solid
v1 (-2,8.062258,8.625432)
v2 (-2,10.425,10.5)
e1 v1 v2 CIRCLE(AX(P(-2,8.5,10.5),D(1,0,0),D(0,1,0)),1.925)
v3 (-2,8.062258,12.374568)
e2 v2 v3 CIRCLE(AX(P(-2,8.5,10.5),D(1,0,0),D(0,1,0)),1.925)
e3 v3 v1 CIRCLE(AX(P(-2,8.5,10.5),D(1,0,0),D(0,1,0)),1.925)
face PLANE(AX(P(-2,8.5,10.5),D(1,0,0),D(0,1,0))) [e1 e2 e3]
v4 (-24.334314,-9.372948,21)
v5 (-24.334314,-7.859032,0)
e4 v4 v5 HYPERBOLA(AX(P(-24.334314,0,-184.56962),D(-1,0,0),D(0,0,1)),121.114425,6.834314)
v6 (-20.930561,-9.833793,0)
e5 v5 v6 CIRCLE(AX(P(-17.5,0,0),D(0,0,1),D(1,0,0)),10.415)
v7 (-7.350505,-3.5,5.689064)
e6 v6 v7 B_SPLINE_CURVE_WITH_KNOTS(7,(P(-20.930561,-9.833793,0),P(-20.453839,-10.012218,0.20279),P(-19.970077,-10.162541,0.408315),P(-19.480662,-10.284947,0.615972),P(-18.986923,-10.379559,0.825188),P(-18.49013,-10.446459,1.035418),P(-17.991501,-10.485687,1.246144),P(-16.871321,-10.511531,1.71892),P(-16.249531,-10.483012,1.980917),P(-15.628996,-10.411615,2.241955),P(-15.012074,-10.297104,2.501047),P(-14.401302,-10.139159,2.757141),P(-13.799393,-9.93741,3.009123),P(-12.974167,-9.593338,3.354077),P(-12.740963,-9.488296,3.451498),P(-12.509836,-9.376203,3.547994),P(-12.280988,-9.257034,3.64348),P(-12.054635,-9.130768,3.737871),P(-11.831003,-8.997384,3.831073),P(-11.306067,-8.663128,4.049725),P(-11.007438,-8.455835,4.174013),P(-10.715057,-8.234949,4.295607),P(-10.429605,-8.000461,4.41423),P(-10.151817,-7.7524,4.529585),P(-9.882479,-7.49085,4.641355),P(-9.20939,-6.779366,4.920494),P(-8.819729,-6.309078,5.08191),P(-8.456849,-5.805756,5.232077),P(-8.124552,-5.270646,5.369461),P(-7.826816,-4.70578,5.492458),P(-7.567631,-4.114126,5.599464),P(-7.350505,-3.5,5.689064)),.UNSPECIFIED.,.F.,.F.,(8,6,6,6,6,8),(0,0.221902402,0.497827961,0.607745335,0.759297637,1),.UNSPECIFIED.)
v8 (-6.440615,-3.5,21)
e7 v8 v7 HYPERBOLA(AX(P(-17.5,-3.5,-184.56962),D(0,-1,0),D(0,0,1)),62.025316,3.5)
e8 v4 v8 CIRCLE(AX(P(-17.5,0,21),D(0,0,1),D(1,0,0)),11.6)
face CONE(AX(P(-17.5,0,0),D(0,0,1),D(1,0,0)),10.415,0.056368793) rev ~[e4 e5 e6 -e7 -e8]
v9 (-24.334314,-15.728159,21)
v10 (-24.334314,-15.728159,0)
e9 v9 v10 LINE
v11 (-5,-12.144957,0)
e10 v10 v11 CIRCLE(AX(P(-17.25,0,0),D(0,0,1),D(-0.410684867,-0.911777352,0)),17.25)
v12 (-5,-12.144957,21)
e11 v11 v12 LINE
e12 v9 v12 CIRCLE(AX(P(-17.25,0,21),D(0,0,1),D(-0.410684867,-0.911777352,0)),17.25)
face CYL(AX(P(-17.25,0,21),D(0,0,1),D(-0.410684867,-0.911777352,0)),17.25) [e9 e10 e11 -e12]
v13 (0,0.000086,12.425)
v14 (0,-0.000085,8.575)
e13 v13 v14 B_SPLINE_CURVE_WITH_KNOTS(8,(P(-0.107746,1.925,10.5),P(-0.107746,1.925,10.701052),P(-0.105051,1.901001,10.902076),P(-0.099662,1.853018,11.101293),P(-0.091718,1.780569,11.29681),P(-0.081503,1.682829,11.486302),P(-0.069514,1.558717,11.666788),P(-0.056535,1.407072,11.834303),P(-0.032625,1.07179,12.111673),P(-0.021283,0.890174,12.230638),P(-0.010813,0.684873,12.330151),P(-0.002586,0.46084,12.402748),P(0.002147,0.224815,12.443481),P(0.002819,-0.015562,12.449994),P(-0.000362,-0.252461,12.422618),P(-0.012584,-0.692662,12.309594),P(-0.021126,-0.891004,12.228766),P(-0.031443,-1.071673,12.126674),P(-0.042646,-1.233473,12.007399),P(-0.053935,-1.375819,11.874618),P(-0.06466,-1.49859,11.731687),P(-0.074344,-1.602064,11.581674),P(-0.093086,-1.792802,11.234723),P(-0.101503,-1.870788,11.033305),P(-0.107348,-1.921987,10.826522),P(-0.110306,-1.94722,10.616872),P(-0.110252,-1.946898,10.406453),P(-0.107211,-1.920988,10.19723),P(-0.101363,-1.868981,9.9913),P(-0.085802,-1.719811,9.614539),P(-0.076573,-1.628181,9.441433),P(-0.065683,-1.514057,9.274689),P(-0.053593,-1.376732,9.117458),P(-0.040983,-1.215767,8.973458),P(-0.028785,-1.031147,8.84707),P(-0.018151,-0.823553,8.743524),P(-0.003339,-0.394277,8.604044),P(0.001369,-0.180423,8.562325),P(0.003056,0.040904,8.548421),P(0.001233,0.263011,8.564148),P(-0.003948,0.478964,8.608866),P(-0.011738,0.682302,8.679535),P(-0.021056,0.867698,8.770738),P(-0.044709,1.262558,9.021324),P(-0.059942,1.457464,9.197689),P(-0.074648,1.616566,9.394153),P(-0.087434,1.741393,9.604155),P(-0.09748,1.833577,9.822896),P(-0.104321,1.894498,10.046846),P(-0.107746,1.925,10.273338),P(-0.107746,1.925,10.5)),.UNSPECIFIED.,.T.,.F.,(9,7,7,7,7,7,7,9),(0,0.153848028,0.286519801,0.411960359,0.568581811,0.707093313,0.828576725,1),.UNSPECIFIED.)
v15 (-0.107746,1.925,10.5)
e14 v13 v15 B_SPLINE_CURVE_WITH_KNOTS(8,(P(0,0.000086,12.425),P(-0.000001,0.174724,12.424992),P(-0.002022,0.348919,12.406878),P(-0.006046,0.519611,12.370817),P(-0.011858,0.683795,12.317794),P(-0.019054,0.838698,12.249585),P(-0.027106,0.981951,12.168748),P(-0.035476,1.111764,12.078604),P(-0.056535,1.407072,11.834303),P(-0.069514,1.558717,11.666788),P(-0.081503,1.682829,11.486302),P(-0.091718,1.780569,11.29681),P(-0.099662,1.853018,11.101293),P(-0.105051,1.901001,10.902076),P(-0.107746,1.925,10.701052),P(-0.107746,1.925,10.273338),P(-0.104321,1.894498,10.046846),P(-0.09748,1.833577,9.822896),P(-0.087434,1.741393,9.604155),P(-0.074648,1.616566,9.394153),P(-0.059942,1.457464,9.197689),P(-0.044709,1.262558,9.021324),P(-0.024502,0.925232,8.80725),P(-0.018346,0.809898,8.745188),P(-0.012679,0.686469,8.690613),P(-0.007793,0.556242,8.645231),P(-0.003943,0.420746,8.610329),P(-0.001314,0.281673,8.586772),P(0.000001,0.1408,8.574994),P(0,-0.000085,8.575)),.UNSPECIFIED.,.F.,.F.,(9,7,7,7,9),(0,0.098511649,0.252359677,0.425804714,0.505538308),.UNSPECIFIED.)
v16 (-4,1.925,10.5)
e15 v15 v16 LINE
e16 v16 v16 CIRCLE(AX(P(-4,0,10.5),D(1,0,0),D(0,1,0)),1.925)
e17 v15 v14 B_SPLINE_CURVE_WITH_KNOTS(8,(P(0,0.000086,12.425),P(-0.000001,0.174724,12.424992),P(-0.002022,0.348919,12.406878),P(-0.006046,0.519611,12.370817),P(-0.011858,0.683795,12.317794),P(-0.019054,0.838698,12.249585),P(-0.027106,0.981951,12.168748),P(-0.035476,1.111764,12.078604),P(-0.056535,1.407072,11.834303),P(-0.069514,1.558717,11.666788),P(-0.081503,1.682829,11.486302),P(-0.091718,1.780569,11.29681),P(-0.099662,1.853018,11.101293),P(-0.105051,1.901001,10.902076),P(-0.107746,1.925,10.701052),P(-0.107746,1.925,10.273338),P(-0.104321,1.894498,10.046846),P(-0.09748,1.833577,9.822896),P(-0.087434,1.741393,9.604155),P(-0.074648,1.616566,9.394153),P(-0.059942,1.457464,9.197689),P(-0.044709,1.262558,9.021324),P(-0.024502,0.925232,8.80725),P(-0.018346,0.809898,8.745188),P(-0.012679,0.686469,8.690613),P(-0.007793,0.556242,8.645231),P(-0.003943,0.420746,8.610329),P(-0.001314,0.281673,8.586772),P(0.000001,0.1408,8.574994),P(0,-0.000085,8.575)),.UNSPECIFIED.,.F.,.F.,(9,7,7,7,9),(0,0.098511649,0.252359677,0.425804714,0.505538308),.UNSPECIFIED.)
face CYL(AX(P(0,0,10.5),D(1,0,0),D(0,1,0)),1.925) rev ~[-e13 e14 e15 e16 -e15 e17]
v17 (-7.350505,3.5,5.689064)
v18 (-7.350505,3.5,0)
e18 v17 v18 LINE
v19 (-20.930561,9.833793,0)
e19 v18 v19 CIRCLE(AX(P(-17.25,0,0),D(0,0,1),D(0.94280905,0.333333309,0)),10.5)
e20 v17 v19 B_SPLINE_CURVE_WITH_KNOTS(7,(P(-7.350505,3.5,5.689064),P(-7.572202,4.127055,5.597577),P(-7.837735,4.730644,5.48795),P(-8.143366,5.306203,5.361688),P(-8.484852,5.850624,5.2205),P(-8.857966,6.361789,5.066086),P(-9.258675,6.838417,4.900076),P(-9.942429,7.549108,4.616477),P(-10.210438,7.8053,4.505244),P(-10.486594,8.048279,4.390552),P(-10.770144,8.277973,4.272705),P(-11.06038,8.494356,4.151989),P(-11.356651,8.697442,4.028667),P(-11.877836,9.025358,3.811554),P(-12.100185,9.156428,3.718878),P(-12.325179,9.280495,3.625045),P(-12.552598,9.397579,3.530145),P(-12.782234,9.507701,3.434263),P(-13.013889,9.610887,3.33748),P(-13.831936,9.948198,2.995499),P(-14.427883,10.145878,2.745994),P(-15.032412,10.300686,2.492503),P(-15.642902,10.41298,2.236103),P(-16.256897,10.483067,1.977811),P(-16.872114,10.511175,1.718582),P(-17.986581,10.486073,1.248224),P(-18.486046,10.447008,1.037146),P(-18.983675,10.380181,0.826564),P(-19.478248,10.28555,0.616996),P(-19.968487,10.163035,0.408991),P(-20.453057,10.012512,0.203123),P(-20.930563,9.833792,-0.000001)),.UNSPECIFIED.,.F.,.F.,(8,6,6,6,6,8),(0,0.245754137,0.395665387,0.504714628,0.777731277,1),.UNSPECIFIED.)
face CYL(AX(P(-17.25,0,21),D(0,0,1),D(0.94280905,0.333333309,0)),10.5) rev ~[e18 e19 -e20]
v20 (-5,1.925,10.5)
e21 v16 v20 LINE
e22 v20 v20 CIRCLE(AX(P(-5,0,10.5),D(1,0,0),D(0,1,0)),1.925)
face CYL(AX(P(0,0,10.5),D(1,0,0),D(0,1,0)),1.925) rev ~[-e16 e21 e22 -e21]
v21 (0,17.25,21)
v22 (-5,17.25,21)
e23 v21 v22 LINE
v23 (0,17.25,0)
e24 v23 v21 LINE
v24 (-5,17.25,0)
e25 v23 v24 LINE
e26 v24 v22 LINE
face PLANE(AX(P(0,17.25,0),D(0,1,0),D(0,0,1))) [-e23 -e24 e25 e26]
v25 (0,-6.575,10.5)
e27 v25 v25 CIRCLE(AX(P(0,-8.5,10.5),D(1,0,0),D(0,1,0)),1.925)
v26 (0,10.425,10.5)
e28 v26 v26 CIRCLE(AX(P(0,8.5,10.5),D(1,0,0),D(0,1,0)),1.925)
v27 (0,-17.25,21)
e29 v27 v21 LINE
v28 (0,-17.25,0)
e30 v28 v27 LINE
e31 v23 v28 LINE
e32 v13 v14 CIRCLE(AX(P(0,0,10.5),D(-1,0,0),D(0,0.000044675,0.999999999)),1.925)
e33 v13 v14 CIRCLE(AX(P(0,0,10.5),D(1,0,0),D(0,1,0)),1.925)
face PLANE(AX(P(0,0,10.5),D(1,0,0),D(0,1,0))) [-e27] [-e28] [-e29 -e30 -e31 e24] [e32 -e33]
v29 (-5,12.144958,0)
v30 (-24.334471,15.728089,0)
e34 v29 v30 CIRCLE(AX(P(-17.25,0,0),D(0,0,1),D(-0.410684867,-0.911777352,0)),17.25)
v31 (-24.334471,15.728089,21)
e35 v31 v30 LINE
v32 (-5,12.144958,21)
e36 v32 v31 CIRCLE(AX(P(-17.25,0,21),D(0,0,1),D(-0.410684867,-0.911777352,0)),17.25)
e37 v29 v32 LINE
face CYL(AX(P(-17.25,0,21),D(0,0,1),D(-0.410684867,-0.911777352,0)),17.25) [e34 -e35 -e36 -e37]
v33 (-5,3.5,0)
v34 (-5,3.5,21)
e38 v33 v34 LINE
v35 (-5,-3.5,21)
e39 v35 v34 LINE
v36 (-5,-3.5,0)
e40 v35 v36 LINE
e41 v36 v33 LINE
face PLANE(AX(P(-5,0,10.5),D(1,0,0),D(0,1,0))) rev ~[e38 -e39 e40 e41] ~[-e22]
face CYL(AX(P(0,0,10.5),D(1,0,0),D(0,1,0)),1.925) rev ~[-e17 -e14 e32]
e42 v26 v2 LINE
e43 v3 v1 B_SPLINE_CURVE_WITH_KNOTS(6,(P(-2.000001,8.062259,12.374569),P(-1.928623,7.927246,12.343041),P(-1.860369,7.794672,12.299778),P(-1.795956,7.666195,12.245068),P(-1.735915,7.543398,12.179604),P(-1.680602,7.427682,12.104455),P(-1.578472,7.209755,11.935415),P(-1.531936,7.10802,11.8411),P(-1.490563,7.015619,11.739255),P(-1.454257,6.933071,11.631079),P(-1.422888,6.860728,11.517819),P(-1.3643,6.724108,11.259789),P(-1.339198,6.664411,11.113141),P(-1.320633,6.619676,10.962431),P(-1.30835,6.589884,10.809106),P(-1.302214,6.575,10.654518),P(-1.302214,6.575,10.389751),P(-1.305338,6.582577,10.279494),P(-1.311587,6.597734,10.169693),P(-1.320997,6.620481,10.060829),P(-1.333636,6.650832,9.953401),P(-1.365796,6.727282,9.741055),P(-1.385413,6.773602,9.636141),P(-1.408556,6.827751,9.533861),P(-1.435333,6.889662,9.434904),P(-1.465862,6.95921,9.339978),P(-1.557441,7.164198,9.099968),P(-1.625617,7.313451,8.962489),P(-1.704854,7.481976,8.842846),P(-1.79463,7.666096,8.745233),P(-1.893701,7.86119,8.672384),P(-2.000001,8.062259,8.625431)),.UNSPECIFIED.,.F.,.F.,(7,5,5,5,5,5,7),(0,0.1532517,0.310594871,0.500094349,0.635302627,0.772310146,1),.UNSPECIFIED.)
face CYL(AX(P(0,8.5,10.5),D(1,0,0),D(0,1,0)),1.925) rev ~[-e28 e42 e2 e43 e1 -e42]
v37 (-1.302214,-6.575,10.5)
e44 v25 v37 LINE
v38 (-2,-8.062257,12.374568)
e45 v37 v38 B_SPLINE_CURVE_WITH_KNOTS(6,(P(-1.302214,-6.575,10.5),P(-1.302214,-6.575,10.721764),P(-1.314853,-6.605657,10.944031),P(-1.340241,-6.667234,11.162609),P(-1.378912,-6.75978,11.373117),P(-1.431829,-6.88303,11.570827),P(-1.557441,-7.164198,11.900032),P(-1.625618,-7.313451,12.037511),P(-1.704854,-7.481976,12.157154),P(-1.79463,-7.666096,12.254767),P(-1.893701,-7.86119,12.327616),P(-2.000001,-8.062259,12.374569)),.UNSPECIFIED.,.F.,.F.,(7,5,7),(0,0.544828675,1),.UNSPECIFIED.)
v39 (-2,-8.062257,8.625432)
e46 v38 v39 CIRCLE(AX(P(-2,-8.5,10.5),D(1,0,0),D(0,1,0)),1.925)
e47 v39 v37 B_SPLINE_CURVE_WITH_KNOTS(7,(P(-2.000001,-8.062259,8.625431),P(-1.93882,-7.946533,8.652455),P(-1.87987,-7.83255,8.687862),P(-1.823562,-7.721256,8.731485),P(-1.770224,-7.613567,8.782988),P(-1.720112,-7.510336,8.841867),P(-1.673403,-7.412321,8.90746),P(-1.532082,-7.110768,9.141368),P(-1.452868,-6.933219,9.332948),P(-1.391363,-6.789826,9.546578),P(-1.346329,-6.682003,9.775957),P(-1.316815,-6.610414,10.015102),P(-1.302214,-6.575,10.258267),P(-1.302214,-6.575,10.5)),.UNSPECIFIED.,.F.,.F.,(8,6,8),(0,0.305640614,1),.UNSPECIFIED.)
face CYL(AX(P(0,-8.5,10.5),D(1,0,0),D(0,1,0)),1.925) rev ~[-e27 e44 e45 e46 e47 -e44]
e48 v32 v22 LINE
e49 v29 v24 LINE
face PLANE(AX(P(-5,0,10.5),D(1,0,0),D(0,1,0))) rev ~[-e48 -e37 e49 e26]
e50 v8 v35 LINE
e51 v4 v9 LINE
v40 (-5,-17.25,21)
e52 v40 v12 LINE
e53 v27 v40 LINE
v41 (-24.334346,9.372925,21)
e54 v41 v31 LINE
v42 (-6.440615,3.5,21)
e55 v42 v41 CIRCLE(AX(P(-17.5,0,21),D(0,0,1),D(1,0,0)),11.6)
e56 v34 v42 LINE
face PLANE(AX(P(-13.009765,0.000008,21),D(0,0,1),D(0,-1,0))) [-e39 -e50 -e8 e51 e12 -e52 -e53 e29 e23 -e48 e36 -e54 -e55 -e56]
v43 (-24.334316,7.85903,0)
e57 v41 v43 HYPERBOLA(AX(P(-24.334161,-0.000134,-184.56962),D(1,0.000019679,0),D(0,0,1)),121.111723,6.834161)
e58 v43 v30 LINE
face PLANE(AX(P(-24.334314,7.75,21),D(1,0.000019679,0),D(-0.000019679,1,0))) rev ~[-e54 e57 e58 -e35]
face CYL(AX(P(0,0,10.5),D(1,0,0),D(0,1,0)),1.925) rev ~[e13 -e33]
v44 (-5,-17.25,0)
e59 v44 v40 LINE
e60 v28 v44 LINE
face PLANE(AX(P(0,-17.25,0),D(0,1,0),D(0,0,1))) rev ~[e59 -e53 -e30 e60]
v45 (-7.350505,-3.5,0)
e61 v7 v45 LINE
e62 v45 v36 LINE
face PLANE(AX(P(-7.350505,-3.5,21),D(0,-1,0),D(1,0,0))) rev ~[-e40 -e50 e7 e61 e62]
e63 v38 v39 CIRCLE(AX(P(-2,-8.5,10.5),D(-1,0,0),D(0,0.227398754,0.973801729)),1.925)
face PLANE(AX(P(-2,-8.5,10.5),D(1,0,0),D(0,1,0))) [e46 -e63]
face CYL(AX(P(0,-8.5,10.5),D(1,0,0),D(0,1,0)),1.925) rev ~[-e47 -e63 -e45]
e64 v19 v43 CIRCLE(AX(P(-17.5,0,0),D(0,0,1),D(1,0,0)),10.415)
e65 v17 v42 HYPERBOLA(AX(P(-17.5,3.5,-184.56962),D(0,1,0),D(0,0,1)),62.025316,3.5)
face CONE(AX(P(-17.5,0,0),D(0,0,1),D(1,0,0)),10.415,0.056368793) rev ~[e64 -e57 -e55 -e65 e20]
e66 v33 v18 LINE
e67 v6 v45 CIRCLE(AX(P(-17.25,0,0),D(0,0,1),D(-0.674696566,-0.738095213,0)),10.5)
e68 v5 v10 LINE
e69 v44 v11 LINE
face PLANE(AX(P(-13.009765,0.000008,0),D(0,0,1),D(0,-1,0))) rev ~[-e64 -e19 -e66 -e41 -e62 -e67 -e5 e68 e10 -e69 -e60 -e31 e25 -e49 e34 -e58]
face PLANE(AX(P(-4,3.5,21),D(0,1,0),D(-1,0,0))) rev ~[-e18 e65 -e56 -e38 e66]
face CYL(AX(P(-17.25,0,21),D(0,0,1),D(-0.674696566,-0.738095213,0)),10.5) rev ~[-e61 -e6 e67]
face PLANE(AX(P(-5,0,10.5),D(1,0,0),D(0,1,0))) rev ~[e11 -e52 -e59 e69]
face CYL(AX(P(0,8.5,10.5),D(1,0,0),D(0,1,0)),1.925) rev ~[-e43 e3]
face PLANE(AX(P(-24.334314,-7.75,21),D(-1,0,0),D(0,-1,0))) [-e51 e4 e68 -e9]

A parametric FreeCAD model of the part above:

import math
import FreeCAD as App
import Part
import Sketcher

V = App.Vector


def add_polygon(sketch, points):
    """Adds a closed chain of lines whose ends are joined by coincident constraints."""
    first, n = sketch.GeometryCount, len(points)
    for a, b in zip(points, points[1:] + points[:1]):
        sketch.addGeometry(Part.LineSegment(App.Vector(*a, 0), App.Vector(*b, 0)), False)
    for i in range(n):
        sketch.addConstraint(Sketcher.Constraint("Coincident", first + i, 2, first + (i + 1) % n, 1))

doc = App.newDocument("Part")
body = doc.addObject("PartDesign::Body", "Body")

# Sketch on XZ plane
sketch1 = body.newObject("Sketcher::SketchObject", "Sketch")
sketch1.AttachmentSupport = (doc.getObject("XZ_Plane"), [""])
sketch1.MapMode = "FlatFace"
add_polygon(sketch1, [(-18, 0), (-7, 0), (-6, 21), (-18, 21)])  # lines 0-3
sketch1.addGeometry(Part.LineSegment(V(-18, 0, 0), V(-18, 21, 0)), True)  # axis
sketch1.addConstraint(Sketcher.Constraint("Horizontal", 0))
sketch1.addConstraint(Sketcher.Constraint("Horizontal", 2))
sketch1.addConstraint(Sketcher.Constraint("Vertical", 3))
sketch1.addConstraint(Sketcher.Constraint("Vertical", 4))
sketch1.addConstraint(Sketcher.Constraint("Coincident", 4, 1, 3, 2))
sketch1.addConstraint(Sketcher.Constraint("PointOnObject", 0, 2, -1))
sketch1.addConstraint(Sketcher.Constraint("Horizontal", 1, 2, 4, 2))
sketch1.addConstraint(Sketcher.Constraint("DistanceY", 3, 2, 3, 1, 21.0))
sketch1.addConstraint(Sketcher.Constraint("DistanceX", 2, 2, 2, 1, 11.6))
sketch1.addConstraint(Sketcher.Constraint("DistanceX", 1, 2, -1, 1, 5.9))
sketch1.addConstraint(Sketcher.Constraint("DistanceX", 0, 1, 0, 2, 10.415))
revolution = body.newObject("PartDesign::Revolution", "Revolution")
revolution.Profile = sketch1
revolution.ReferenceAxis = (sketch1, ["Axis0"])
revolution.Angle = 360
body2 = doc.addObject("PartDesign::Body", "Body001")

# Sketch on YZ plane
sketch2 = body2.newObject("Sketcher::SketchObject", "Sketch001")
sketch2.AttachmentSupport = (doc.getObject("YZ_Plane001"), [""])
sketch2.MapMode = "FlatFace"
add_polygon(sketch2, [(-17.2, 21), (-17.2, 0), (17.2, 0), (17.2, 21)])  # lines 0-3
sketch2.addGeometry(Part.Circle(V(0, 10.5, 0), V(0, 0, 1), 1.9), False)  # 4
sketch2.addConstraint(Sketcher.Constraint("Vertical", 0))
sketch2.addConstraint(Sketcher.Constraint("Horizontal", 1))
sketch2.addConstraint(Sketcher.Constraint("Vertical", 2))
sketch2.addConstraint(Sketcher.Constraint("Horizontal", 3))
sketch2.addConstraint(Sketcher.Constraint("Symmetric", 0, 2, 1, 2, -1, 1))
sketch2.addConstraint(Sketcher.Constraint("PointOnObject", 4, 3, -2))
sketch2.addConstraint(Sketcher.Constraint("Diameter", 4, 3.85))
sketch2.addConstraint(Sketcher.Constraint("DistanceY", 0, 2, 0, 1, 21.0))
sketch2.addConstraint(Sketcher.Constraint("DistanceX", 1, 1, 1, 2, 34.5))
sketch2.addConstraint(Sketcher.Constraint("DistanceY", -1, 1, 4, 3, 10.5))
pad1 = body2.newObject("PartDesign::Pad", "Pad")
pad1.Profile = sketch2
pad1.Length = 5
pad1.Reversed = True

# Sketch on YZ plane
sketch3 = body2.newObject("Sketcher::SketchObject", "Sketch002")
sketch3.AttachmentSupport = (doc.getObject("YZ_Plane001"), [""])
sketch3.MapMode = "FlatFace"
sketch3.addGeometry(Part.Circle(V(-8.5, 10.5, 0), V(0, 0, 1), 1.9), False)
sketch3.addGeometry(Part.Circle(V(8.5, 10.5, 0), V(0, 0, 1), 1.9), False)
sketch3.addConstraint(Sketcher.Constraint("Equal", 0, 1))
sketch3.addConstraint(Sketcher.Constraint("Symmetric", 0, 3, 1, 3, -2))
sketch3.addConstraint(Sketcher.Constraint("Diameter", 0, 3.85))
sketch3.addConstraint(Sketcher.Constraint("DistanceX", 0, 3, 1, 3, 17.0))
sketch3.addConstraint(Sketcher.Constraint("DistanceY", -1, 1, 0, 3, 10.5))
pocket1 = body2.newObject("PartDesign::Pocket", "Pocket")
pocket1.Profile = sketch3
pocket1.Length = 2

# Sketch on XY plane
sketch4 = body2.newObject("Sketcher::SketchObject", "Sketch003")
sketch4.AttachmentSupport = (doc.getObject("XY_Plane001"), [""])
sketch4.MapMode = "FlatFace"
sketch4.AttachmentOffset = App.Placement(V(0, 0, 21), App.Rotation())
sketch4.addGeometry(Part.ArcOfCircle(Part.Circle(V(-17.3, 0, 0), V(0, 0, 1), 17.3), math.radians(-114), math.radians(114)), False)
sketch4.addGeometry(Part.LineSegment(V(-24.3, 15.7, 0), V(-24.3, 7.8, 0)), False)
sketch4.addGeometry(Part.ArcOfCircle(Part.Circle(V(-17.3, 0, 0), V(0, 0, 1), 10.5), math.radians(19), math.radians(132)), False)
sketch4.addGeometry(Part.LineSegment(V(-7.4, 3.5, 0), V(-4, 3.5, 0)), False)
sketch4.addGeometry(Part.LineSegment(V(-4, 3.5, 0), V(-4, -3.5, 0)), False)
sketch4.addGeometry(Part.LineSegment(V(-4, -3.5, 0), V(-7.4, -3.5, 0)), False)
sketch4.addGeometry(Part.ArcOfCircle(Part.Circle(V(-17.3, 0, 0), V(0, 0, 1), 10.5), math.radians(-132), math.radians(-19)), False)
sketch4.addGeometry(Part.LineSegment(V(-24.3, -7.8, 0), V(-24.3, -15.7, 0)), False)
sketch4.addConstraint(Sketcher.Constraint("Coincident", 0, 2, 1, 1))
sketch4.addConstraint(Sketcher.Constraint("Coincident", 1, 2, 2, 2))
sketch4.addConstraint(Sketcher.Constraint("Coincident", 2, 1, 3, 1))
sketch4.addConstraint(Sketcher.Constraint("Coincident", 3, 2, 4, 1))
sketch4.addConstraint(Sketcher.Constraint("Coincident", 4, 2, 5, 1))
sketch4.addConstraint(Sketcher.Constraint("Coincident", 5, 2, 6, 2))
sketch4.addConstraint(Sketcher.Constraint("Coincident", 6, 1, 7, 1))
sketch4.addConstraint(Sketcher.Constraint("Coincident", 7, 2, 0, 1))
sketch4.addConstraint(Sketcher.Constraint("Horizontal", 3))
sketch4.addConstraint(Sketcher.Constraint("Vertical", 4))
sketch4.addConstraint(Sketcher.Constraint("Horizontal", 5))
sketch4.addConstraint(Sketcher.Constraint("Vertical", 7))
sketch4.addConstraint(Sketcher.Constraint("Coincident", 2, 3, 0, 3))
sketch4.addConstraint(Sketcher.Constraint("Coincident", 6, 3, 0, 3))
sketch4.addConstraint(Sketcher.Constraint("Equal", 2, 6))
sketch4.addConstraint(Sketcher.Constraint("Symmetric", 2, 1, 5, 2, -1))
sketch4.addConstraint(Sketcher.Constraint("Vertical", 1, 2, 6, 1))
sketch4.addConstraint(Sketcher.Constraint("Radius", 2, 10.5))
sketch4.addConstraint(Sketcher.Constraint("DistanceY", 4, 2, 4, 1, 7.0))
sketch4.addConstraint(Sketcher.Constraint("Radius", 0, 17.25))
sketch4.addConstraint(Sketcher.Constraint("DistanceX", 3, 2, -1, 1, 4.0))
sketch4.addConstraint(Sketcher.Constraint("DistanceY", 6, 1, 1, 2, 15.5))
sketch4.addConstraint(Sketcher.Constraint("DistanceX", 0, 3, -1, 1, 17.25))
sketch4.addConstraint(Sketcher.Constraint("Distance", 1, 7.978089))
pad2 = body2.newObject("PartDesign::Pad", "Pad001")
pad2.Profile = sketch4
pad2.Length = 21
pad2.Reversed = True

# Sketch on YZ plane
sketch5 = body2.newObject("Sketcher::SketchObject", "Sketch004")
sketch5.AttachmentSupport = (doc.getObject("YZ_Plane001"), [""])
sketch5.MapMode = "FlatFace"
sketch5.addGeometry(Part.Circle(V(-8.5, 10.5, 0), V(0, 0, 1), 1.9), False)
sketch5.addGeometry(Part.Circle(V(8.5, 10.5, 0), V(0, 0, 1), 1.9), False)
sketch5.addConstraint(Sketcher.Constraint("Equal", 0, 1))
sketch5.addConstraint(Sketcher.Constraint("Symmetric", 0, 3, 1, 3, -2))
sketch5.addConstraint(Sketcher.Constraint("Diameter", 0, 3.85))
sketch5.addConstraint(Sketcher.Constraint("DistanceX", 0, 3, 1, 3, 17.0))
sketch5.addConstraint(Sketcher.Constraint("DistanceY", -1, 1, 0, 3, 10.5))
pocket2 = body2.newObject("PartDesign::Pocket", "Pocket001")
pocket2.Profile = sketch5
pocket2.Length = 2

# Sketch on YZ plane
sketch6 = body2.newObject("Sketcher::SketchObject", "Sketch005")
sketch6.AttachmentSupport = (doc.getObject("YZ_Plane001"), [""])
sketch6.MapMode = "FlatFace"
sketch6.addGeometry(Part.Circle(V(0, 10.5, 0), V(0, 0, 1), 1.9), False)
sketch6.addConstraint(Sketcher.Constraint("PointOnObject", 0, 3, -2))
sketch6.addConstraint(Sketcher.Constraint("Diameter", 0, 3.85))
sketch6.addConstraint(Sketcher.Constraint("DistanceY", -1, 1, 0, 3, 10.5))
pocket3 = body2.newObject("PartDesign::Pocket", "Pocket002")
pocket3.Profile = sketch6
pocket3.Type = "ThroughAll"
doc.recompute()

boolean = body2.newObject("PartDesign::Boolean", "Boolean")
boolean.Type = "Cut"
boolean.addObjects([body])

doc.recompute()
